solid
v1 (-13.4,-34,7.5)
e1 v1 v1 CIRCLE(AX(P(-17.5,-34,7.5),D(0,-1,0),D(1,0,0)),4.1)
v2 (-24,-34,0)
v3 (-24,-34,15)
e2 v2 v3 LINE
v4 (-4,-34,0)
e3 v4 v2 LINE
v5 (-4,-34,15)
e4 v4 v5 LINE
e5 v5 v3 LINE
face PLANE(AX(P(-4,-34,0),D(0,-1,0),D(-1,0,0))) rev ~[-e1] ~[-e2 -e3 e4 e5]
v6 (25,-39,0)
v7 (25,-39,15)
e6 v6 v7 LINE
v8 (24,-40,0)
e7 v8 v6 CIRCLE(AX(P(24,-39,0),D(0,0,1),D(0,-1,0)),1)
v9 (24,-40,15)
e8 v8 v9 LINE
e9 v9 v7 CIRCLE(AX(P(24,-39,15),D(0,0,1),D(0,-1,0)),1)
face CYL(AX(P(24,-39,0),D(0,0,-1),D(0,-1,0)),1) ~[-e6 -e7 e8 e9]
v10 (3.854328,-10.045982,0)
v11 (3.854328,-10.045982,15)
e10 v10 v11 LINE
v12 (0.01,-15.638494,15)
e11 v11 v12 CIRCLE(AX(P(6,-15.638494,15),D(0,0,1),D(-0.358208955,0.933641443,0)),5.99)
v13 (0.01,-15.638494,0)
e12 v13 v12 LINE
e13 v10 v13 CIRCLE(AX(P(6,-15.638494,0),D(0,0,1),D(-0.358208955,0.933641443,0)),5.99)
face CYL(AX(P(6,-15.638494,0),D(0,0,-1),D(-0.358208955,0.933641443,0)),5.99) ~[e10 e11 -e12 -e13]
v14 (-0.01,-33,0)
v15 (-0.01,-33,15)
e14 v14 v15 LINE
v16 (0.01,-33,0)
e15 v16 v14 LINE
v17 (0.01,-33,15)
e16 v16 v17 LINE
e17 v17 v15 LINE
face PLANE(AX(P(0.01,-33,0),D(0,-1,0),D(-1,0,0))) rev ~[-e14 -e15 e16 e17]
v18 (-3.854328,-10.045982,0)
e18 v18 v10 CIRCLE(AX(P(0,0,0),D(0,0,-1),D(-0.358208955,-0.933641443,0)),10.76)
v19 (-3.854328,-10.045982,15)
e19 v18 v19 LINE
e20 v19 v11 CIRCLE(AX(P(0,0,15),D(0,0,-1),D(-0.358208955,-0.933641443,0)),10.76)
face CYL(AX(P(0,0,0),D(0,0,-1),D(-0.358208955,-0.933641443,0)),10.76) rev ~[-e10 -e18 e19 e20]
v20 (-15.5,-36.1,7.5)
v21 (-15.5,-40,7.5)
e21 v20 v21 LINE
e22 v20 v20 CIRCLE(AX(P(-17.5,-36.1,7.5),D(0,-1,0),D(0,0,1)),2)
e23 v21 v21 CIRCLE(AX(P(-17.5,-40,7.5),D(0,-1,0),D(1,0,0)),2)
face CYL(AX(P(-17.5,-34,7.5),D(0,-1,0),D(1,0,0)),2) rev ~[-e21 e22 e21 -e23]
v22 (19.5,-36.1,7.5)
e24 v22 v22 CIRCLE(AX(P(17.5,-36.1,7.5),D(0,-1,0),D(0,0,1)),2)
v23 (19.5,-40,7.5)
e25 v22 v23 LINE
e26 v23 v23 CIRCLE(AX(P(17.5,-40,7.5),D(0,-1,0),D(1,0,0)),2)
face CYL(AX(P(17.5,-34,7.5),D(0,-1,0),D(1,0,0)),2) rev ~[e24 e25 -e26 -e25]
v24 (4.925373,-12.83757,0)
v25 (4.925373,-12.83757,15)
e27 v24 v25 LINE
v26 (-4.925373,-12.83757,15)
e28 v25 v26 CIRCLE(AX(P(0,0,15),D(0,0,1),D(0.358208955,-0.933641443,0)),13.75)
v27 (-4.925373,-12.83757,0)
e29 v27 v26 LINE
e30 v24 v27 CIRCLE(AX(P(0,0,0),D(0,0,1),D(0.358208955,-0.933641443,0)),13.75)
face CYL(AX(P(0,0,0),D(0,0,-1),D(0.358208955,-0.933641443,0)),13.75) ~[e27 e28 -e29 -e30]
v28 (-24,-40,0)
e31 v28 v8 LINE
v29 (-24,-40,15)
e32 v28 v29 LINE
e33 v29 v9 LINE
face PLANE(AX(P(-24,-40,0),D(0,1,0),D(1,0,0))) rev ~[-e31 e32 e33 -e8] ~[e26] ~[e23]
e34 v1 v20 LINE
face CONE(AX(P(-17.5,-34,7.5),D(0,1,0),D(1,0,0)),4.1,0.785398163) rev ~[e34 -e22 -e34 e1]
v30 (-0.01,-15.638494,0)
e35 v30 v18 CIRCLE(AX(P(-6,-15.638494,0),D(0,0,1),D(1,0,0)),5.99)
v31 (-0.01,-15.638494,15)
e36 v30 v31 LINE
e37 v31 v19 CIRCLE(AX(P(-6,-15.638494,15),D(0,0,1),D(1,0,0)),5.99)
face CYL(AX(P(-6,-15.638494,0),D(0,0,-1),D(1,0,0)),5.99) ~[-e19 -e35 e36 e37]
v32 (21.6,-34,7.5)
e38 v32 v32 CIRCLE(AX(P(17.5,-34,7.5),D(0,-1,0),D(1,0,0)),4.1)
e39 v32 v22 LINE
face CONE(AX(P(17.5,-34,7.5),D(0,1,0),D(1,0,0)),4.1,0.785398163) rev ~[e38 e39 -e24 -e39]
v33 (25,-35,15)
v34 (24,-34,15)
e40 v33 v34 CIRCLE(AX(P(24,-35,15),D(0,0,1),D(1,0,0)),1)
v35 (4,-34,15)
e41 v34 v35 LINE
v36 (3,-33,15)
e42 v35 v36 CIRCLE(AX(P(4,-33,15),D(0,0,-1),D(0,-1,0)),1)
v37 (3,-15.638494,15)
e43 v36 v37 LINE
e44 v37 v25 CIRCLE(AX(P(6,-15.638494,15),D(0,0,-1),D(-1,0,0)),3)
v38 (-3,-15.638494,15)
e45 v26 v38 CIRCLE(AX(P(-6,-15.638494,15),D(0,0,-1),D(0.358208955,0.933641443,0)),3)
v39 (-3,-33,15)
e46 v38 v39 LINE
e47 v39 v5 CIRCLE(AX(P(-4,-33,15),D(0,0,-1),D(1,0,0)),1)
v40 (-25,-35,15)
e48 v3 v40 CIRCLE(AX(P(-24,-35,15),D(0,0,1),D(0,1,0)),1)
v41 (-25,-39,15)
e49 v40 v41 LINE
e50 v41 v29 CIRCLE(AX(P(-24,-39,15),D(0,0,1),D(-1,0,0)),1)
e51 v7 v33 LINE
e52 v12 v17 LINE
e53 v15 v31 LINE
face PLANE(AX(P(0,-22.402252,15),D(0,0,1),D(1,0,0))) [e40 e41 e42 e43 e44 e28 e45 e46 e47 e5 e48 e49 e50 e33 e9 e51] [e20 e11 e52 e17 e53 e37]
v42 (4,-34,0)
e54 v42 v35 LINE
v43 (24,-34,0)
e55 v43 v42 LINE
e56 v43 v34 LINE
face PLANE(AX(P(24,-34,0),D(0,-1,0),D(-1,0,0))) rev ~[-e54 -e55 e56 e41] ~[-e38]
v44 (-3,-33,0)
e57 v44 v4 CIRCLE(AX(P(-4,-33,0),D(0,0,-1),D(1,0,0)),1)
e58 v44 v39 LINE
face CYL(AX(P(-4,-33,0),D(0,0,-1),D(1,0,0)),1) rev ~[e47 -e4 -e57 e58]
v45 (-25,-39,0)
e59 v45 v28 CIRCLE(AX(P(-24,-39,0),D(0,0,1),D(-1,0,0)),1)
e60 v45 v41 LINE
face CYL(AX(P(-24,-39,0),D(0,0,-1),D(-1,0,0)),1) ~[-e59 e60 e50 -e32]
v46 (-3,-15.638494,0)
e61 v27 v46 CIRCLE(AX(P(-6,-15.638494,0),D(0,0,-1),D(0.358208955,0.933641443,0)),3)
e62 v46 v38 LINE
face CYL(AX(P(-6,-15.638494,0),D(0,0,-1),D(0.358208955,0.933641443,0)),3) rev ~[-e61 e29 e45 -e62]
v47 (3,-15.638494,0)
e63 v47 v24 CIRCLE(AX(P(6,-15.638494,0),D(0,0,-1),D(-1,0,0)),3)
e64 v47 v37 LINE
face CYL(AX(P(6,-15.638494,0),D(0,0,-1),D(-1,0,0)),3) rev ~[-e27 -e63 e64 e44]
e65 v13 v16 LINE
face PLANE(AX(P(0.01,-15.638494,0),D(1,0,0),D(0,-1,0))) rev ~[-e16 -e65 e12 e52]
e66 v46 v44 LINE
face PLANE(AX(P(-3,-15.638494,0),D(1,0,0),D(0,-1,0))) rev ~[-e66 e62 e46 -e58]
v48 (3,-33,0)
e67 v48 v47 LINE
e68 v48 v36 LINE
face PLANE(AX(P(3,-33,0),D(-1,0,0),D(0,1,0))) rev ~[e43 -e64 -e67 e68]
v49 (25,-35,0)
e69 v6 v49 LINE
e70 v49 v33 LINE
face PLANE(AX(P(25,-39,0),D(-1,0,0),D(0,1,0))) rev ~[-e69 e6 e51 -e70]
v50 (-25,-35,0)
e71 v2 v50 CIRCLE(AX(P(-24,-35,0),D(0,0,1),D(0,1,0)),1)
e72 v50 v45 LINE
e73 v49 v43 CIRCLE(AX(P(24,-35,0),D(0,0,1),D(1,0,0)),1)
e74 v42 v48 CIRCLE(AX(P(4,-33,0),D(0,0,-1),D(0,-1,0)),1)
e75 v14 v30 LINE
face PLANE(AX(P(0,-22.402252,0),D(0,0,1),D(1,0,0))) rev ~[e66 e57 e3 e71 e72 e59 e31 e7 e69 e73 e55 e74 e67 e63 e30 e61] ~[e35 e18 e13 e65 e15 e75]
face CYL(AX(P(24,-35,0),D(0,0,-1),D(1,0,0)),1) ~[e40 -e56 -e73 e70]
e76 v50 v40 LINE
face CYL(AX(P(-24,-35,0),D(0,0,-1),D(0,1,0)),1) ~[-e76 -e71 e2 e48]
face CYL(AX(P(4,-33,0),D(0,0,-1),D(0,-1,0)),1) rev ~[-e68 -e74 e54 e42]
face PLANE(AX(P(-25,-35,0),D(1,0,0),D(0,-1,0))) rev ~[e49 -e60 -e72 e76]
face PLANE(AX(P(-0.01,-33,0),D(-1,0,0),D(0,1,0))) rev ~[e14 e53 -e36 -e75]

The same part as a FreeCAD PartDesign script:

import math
import FreeCAD as App
import Part
import Sketcher

V = App.Vector

doc = App.newDocument("Part")
body = doc.addObject("PartDesign::Body", "Body")

sketch1 = body.newObject("Sketcher::SketchObject", "Sketch")
sketch1.AttachmentSupport = (doc.getObject("XY_Plane"), [""])
sketch1.MapMode = "FlatFace"
sketch1.addGeometry([
    Part.ArcOfCircle(Part.Circle(V(6, -15.638, 0), V(0, 0, 1), 3), math.radians(111), math.radians(180)),
    Part.ArcOfCircle(Part.Circle(V(0, 0, 0), V(0, 0, 1), 13.75), math.radians(-69), math.radians(249)),
    Part.ArcOfCircle(Part.Circle(V(-6, -15.638, 0), V(0, 0, 1), 3), math.radians(0), math.radians(69)),
    Part.LineSegment(V(-3, -15.638, 0), V(-3, -33, 0)),
    Part.ArcOfCircle(Part.Circle(V(-4, -33, 0), V(0, 0, 1), 1), math.radians(-90), math.radians(0)),
    Part.LineSegment(V(-4, -34, 0), V(-24, -34, 0)),
    Part.ArcOfCircle(Part.Circle(V(-24, -35, 0), V(0, 0, 1), 1), math.radians(90), math.radians(180)),
    Part.LineSegment(V(-25, -35, 0), V(-25, -39, 0)),
    Part.ArcOfCircle(Part.Circle(V(-24, -39, 0), V(0, 0, 1), 1), math.radians(180), math.radians(270)),
    Part.LineSegment(V(-24, -40, 0), V(24, -40, 0)),
    Part.ArcOfCircle(Part.Circle(V(24, -39, 0), V(0, 0, 1), 1), math.radians(-90), math.radians(0)),
    Part.LineSegment(V(25, -39, 0), V(25, -35, 0)),
    Part.ArcOfCircle(Part.Circle(V(24, -35, 0), V(0, 0, 1), 1), math.radians(0), math.radians(90)),
    Part.LineSegment(V(24, -34, 0), V(4, -34, 0)),
    Part.ArcOfCircle(Part.Circle(V(4, -33, 0), V(0, 0, 1), 1), math.radians(180), math.radians(270)),
    Part.LineSegment(V(3, -33, 0), V(3, -15.638, 0)),
    Part.ArcOfCircle(Part.Circle(V(-6, -15.638, 0), V(0, 0, 1), 5.99), math.radians(0), math.radians(69)),
    Part.ArcOfCircle(Part.Circle(V(0, 0, 0), V(0, 0, 1), 10.76), math.radians(-69), math.radians(249)),
    Part.ArcOfCircle(Part.Circle(V(6, -15.638, 0), V(0, 0, 1), 5.99), math.radians(111), math.radians(180)),
    Part.LineSegment(V(0.01, -15.638, 0), V(0.01, -33, 0)),
    Part.LineSegment(V(0.01, -33, 0), V(-0.01, -33, 0)),
    Part.LineSegment(V(-0.01, -33, 0), V(-0.01, -15.638, 0)),
], False)
sketch1.addConstraint([
    Sketcher.Constraint("Tangent", 0, 1, 1, 1),
    Sketcher.Constraint("Tangent", 1, 2, 2, 2),
    Sketcher.Constraint("Tangent", 2, 1, 3, 1),
    Sketcher.Constraint("Tangent", 3, 2, 4, 2),
    Sketcher.Constraint("Tangent", 4, 1, 5, 1),
    Sketcher.Constraint("Tangent", 5, 2, 6, 1),
    Sketcher.Constraint("Tangent", 6, 2, 7, 1),
    Sketcher.Constraint("Tangent", 7, 2, 8, 1),
    Sketcher.Constraint("Tangent", 8, 2, 9, 1),
    Sketcher.Constraint("Tangent", 9, 2, 10, 1),
    Sketcher.Constraint("Tangent", 10, 2, 11, 1),
    Sketcher.Constraint("Tangent", 11, 2, 12, 1),
    Sketcher.Constraint("Tangent", 12, 2, 13, 1),
    Sketcher.Constraint("Tangent", 13, 2, 14, 2),
    Sketcher.Constraint("Tangent", 14, 1, 15, 1),
    Sketcher.Constraint("Tangent", 15, 2, 0, 2),
    Sketcher.Constraint("Tangent", 16, 2, 17, 2),
    Sketcher.Constraint("Tangent", 17, 1, 18, 1),
    Sketcher.Constraint("Tangent", 18, 2, 19, 1),
    Sketcher.Constraint("Coincident", 19, 2, 20, 1),
    Sketcher.Constraint("Coincident", 20, 2, 21, 1),
    Sketcher.Constraint("Tangent", 21, 2, 16, 1),
    Sketcher.Constraint("Vertical", 3),
    Sketcher.Constraint("Horizontal", 5),
    Sketcher.Constraint("Vertical", 7),
    Sketcher.Constraint("Horizontal", 9),
    Sketcher.Constraint("Vertical", 11),
    Sketcher.Constraint("Horizontal", 13),
    Sketcher.Constraint("Vertical", 15),
    Sketcher.Constraint("Vertical", 19),
    Sketcher.Constraint("Horizontal", 20),
    Sketcher.Constraint("Vertical", 21),
    Sketcher.Constraint("Coincident", 1, 3, -1, 1),
    Sketcher.Constraint("Coincident", 17, 3, -1, 1),
    Sketcher.Constraint("Coincident", 16, 3, 2, 3),
    Sketcher.Constraint("Coincident", 18, 3, 0, 3),
    Sketcher.Constraint("Equal", 0, 2),
    Sketcher.Constraint("Equal", 4, 6),
    Sketcher.Constraint("Equal", 6, 8),
    Sketcher.Constraint("Equal", 8, 10),
    Sketcher.Constraint("Equal", 10, 12),
    Sketcher.Constraint("Equal", 12, 14),
    Sketcher.Constraint("Symmetric", 6, 3, 12, 3, -2),
    Sketcher.Constraint("Horizontal", 0, 3, 2, 3),
    Sketcher.Constraint("Horizontal", 14, 1, 19, 2),
    Sketcher.Constraint("Radius", 0, 3.0),
    Sketcher.Constraint("Radius", 4, 1.0),
    Sketcher.Constraint("DistanceX", 5, 2, 5, 1, 20.0),
    Sketcher.Constraint("DistanceX", 9, 1, 9, 2, 48.0),
    Sketcher.Constraint("DistanceY", 7, 2, 7, 1, 4.0),
    Sketcher.Constraint("Radius", 1, 13.75),
    Sketcher.Constraint("Radius", 16, 5.99),
    Sketcher.Constraint("DistanceY", 4, 3, -1, 1, 33.0),
])
pad1 = body.newObject("PartDesign::Pad", "Pad")
pad1.Profile = sketch1
pad1.Length = 15

sketch2 = body.newObject("Sketcher::SketchObject", "Sketch001")
sketch2.AttachmentSupport = (doc.getObject("XZ_Plane"), [""])
sketch2.MapMode = "FlatFace"
sketch2.AttachmentOffset = App.Placement(V(0, 0, 34), App.Rotation())
sketch2.addGeometry([
    Part.Circle(V(17.5, 7.5, 0), V(0, 0, 1), 2),
    Part.Circle(V(-17.5, 7.5, 0), V(0, 0, 1), 2),
], False)
sketch2.addConstraint([
    Sketcher.Constraint("Equal", 0, 1),
    Sketcher.Constraint("Symmetric", 0, 3, 1, 3, -2),
    Sketcher.Constraint("Diameter", 0, 4.0),
    Sketcher.Constraint("DistanceX", 1, 3, 0, 3, 35.0),
    Sketcher.Constraint("DistanceY", -1, 1, 0, 3, 7.5),
])
doc.recompute()
hole = body.newObject("PartDesign::Hole", "Hole")
hole.Profile = sketch2
hole.ThreadType = "None"
hole.Diameter = 4
hole.DepthType = "Dimension"
hole.Depth = 12
hole.DrillPoint = "Angled"
hole.DrillPointAngle = 118
hole.HoleCutType = "Countersink"
hole.HoleCutDiameter = 8.2
hole.HoleCutCountersinkAngle = 90
hole.Reversed = True

doc.recompute()
